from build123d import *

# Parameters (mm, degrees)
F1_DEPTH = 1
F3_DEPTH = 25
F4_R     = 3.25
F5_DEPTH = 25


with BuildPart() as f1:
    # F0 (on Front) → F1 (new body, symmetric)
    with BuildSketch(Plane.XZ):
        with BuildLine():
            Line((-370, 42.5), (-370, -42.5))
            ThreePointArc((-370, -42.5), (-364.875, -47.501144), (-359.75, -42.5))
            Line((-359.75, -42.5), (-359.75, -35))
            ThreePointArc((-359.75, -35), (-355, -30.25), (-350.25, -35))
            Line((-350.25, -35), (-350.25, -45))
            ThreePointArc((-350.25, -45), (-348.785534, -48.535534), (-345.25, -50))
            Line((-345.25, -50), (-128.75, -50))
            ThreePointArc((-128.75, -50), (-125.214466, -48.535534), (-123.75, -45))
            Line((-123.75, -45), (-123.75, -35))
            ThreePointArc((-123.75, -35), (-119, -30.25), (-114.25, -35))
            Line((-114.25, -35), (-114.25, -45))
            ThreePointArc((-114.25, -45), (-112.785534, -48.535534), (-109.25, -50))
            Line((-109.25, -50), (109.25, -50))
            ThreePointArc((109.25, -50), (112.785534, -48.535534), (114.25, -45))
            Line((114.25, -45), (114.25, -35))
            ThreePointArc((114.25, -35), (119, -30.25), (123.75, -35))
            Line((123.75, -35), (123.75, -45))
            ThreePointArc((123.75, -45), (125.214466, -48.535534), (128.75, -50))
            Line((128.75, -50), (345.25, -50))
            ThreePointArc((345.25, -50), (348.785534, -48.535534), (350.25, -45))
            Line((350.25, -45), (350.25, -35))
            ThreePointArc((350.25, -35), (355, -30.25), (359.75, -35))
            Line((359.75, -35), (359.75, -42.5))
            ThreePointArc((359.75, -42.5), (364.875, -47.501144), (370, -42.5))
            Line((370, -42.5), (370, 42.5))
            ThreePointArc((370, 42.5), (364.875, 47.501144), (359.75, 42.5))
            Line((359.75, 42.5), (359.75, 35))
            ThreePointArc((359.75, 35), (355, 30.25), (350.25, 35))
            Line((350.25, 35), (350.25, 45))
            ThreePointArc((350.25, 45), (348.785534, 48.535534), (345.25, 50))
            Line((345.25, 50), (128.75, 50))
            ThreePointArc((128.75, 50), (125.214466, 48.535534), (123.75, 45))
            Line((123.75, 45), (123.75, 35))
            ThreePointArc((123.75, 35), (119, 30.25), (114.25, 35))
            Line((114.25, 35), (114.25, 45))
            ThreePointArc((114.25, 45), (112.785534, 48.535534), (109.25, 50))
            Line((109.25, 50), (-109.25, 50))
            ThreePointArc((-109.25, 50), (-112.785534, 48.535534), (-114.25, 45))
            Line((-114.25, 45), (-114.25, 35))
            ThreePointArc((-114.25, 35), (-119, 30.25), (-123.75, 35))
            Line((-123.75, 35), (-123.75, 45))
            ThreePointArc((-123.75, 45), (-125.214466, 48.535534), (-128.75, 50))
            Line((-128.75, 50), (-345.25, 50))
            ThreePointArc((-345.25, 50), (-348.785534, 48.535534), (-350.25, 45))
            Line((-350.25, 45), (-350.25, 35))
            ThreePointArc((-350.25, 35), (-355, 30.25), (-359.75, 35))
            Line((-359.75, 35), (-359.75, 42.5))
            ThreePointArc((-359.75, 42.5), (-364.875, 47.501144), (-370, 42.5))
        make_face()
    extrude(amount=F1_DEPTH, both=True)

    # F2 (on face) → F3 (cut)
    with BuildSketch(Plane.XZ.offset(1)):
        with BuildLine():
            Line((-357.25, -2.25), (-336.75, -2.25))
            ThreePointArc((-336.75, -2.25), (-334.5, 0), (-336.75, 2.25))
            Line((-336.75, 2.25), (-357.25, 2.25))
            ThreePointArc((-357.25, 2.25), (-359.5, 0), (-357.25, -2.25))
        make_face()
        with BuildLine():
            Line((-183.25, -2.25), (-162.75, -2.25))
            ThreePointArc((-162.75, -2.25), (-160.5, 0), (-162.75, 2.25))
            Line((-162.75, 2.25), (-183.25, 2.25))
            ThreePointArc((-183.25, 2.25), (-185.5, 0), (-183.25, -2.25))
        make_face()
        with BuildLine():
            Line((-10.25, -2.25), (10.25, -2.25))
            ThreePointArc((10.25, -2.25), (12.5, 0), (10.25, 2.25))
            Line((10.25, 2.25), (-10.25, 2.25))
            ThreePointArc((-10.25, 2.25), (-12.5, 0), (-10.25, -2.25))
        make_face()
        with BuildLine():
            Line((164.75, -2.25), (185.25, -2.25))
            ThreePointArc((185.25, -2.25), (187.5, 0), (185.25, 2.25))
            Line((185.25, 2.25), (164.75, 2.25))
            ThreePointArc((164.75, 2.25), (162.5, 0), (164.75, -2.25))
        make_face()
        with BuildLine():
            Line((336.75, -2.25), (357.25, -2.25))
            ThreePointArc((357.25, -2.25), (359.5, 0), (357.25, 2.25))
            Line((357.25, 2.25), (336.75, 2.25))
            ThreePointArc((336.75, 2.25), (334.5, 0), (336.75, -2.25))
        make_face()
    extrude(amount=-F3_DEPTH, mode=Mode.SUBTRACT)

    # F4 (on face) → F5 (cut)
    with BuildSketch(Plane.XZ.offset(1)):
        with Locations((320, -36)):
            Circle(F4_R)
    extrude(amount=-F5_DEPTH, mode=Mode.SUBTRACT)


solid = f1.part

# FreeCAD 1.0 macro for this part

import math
import FreeCAD as App
import Part
import Sketcher
from FreeCAD import Vector
Q = App.Units.Quantity

doc = App.newDocument("Part")
body = doc.addObject("PartDesign::Body", "Body")

# Sketch on XZ plane
sketch1 = doc.addObject("Sketcher::SketchObject", "Sketch")
body.addObject(sketch1)
sketch1.AttachmentSupport = (doc.XZ_Plane, [""])
sketch1.MapMode = "FlatFace"
sketch1.addGeometry(Part.LineSegment(Vector(-370, 42.5, 0), Vector(-370, -42.5, 0)), False)
sketch1.addGeometry(Part.ArcOfCircle(Part.Circle(Vector(-364.9, -42.4, 0), Vector(0, 0, 1), 5.1), math.radians(-179), math.radians(-1)), False)
sketch1.addGeometry(Part.LineSegment(Vector(-359.8, -42.5, 0), Vector(-359.8, -35, 0)), False)
sketch1.addGeometry(Part.ArcOfCircle(Part.Circle(Vector(-355, -35, 0), Vector(0, 0, 1), 4.8), math.radians(0), math.radians(180)), False)
sketch1.addGeometry(Part.LineSegment(Vector(-350.2, -35, 0), Vector(-350.2, -45, 0)), False)
sketch1.addGeometry(Part.ArcOfCircle(Part.Circle(Vector(-345.3, -45, 0), Vector(0, 0, 1), 5), math.radians(180), math.radians(270)), False)
sketch1.addGeometry(Part.LineSegment(Vector(-345.2, -50, 0), Vector(-128.8, -50, 0)), False)
sketch1.addGeometry(Part.ArcOfCircle(Part.Circle(Vector(-128.7, -45, 0), Vector(0, 0, 1), 5), math.radians(-90), math.radians(0)), False)
sketch1.addGeometry(Part.LineSegment(Vector(-123.8, -45, 0), Vector(-123.8, -35, 0)), False)
sketch1.addGeometry(Part.ArcOfCircle(Part.Circle(Vector(-119, -35, 0), Vector(0, 0, 1), 4.8), math.radians(0), math.radians(180)), False)
sketch1.addGeometry(Part.LineSegment(Vector(-114.2, -35, 0), Vector(-114.2, -45, 0)), False)
sketch1.addGeometry(Part.ArcOfCircle(Part.Circle(Vector(-109.3, -45, 0), Vector(0, 0, 1), 5), math.radians(180), math.radians(270)), False)
sketch1.addGeometry(Part.LineSegment(Vector(-109.2, -50, 0), Vector(109.2, -50, 0)), False)
sketch1.addGeometry(Part.ArcOfCircle(Part.Circle(Vector(109.3, -45, 0), Vector(0, 0, 1), 5), math.radians(-90), math.radians(0)), False)
sketch1.addGeometry(Part.LineSegment(Vector(114.2, -45, 0), Vector(114.2, -35, 0)), False)
sketch1.addGeometry(Part.ArcOfCircle(Part.Circle(Vector(119, -35, 0), Vector(0, 0, 1), 4.8), math.radians(0), math.radians(180)), False)
sketch1.addGeometry(Part.LineSegment(Vector(123.8, -35, 0), Vector(123.8, -45, 0)), False)
sketch1.addGeometry(Part.ArcOfCircle(Part.Circle(Vector(128.7, -45, 0), Vector(0, 0, 1), 5), math.radians(180), math.radians(270)), False)
sketch1.addGeometry(Part.LineSegment(Vector(128.8, -50, 0), Vector(345.2, -50, 0)), False)
sketch1.addGeometry(Part.ArcOfCircle(Part.Circle(Vector(345.3, -45, 0), Vector(0, 0, 1), 5), math.radians(-90), math.radians(0)), False)
sketch1.addGeometry(Part.LineSegment(Vector(350.2, -45, 0), Vector(350.2, -35, 0)), False)
sketch1.addGeometry(Part.ArcOfCircle(Part.Circle(Vector(355, -35, 0), Vector(0, 0, 1), 4.8), math.radians(0), math.radians(180)), False)
sketch1.addGeometry(Part.LineSegment(Vector(359.8, -35, 0), Vector(359.8, -42.5, 0)), False)
sketch1.addGeometry(Part.ArcOfCircle(Part.Circle(Vector(364.9, -42.4, 0), Vector(0, 0, 1), 5.1), math.radians(-179), math.radians(-1)), False)
sketch1.addGeometry(Part.LineSegment(Vector(370, -42.5, 0), Vector(370, 42.5, 0)), False)
sketch1.addGeometry(Part.ArcOfCircle(Part.Circle(Vector(364.9, 42.4, 0), Vector(0, 0, 1), 5.1), math.radians(1), math.radians(179)), False)
sketch1.addGeometry(Part.LineSegment(Vector(359.8, 42.5, 0), Vector(359.8, 35, 0)), False)
sketch1.addGeometry(Part.ArcOfCircle(Part.Circle(Vector(355, 35, 0), Vector(0, 0, 1), 4.8), math.radians(180), math.radians(360)), False)
sketch1.addGeometry(Part.LineSegment(Vector(350.2, 35, 0), Vector(350.2, 45, 0)), False)
sketch1.addGeometry(Part.ArcOfCircle(Part.Circle(Vector(345.3, 45, 0), Vector(0, 0, 1), 5), math.radians(0), math.radians(90)), False)
sketch1.addGeometry(Part.LineSegment(Vector(345.2, 50, 0), Vector(128.8, 50, 0)), False)
sketch1.addGeometry(Part.ArcOfCircle(Part.Circle(Vector(128.7, 45, 0), Vector(0, 0, 1), 5), math.radians(90), math.radians(180)), False)
sketch1.addGeometry(Part.LineSegment(Vector(123.8, 45, 0), Vector(123.8, 35, 0)), False)
sketch1.addGeometry(Part.ArcOfCircle(Part.Circle(Vector(119, 35, 0), Vector(0, 0, 1), 4.8), math.radians(180), math.radians(360)), False)
sketch1.addGeometry(Part.LineSegment(Vector(114.2, 35, 0), Vector(114.2, 45, 0)), False)
sketch1.addGeometry(Part.ArcOfCircle(Part.Circle(Vector(109.3, 45, 0), Vector(0, 0, 1), 5), math.radians(0), math.radians(90)), False)
sketch1.addGeometry(Part.LineSegment(Vector(109.2, 50, 0), Vector(-109.2, 50, 0)), False)
sketch1.addGeometry(Part.ArcOfCircle(Part.Circle(Vector(-109.3, 45, 0), Vector(0, 0, 1), 5), math.radians(90), math.radians(180)), False)
sketch1.addGeometry(Part.LineSegment(Vector(-114.2, 45, 0), Vector(-114.2, 35, 0)), False)
sketch1.addGeometry(Part.ArcOfCircle(Part.Circle(Vector(-119, 35, 0), Vector(0, 0, 1), 4.8), math.radians(180), math.radians(360)), False)
sketch1.addGeometry(Part.LineSegment(Vector(-123.8, 35, 0), Vector(-123.8, 45, 0)), False)
sketch1.addGeometry(Part.ArcOfCircle(Part.Circle(Vector(-128.7, 45, 0), Vector(0, 0, 1), 5), math.radians(0), math.radians(90)), False)
sketch1.addGeometry(Part.LineSegment(Vector(-128.8, 50, 0), Vector(-345.2, 50, 0)), False)
sketch1.addGeometry(Part.ArcOfCircle(Part.Circle(Vector(-345.3, 45, 0), Vector(0, 0, 1), 5), math.radians(90), math.radians(180)), False)
sketch1.addGeometry(Part.LineSegment(Vector(-350.2, 45, 0), Vector(-350.2, 35, 0)), False)
sketch1.addGeometry(Part.ArcOfCircle(Part.Circle(Vector(-355, 35, 0), Vector(0, 0, 1), 4.8), math.radians(180), math.radians(360)), False)
sketch1.addGeometry(Part.LineSegment(Vector(-359.8, 35, 0), Vector(-359.8, 42.5, 0)), False)
sketch1.addGeometry(Part.ArcOfCircle(Part.Circle(Vector(-364.9, 42.4, 0), Vector(0, 0, 1), 5.1), math.radians(1), math.radians(179)), False)
sketch1.addConstraint(Sketcher.Constraint("Coincident", 0, 2, 1, 1))
sketch1.addConstraint(Sketcher.Constraint("Coincident", 1, 2, 2, 1))
sketch1.addConstraint(Sketcher.Constraint("Tangent", 2, 2, 3, 2))
sketch1.addConstraint(Sketcher.Constraint("Tangent", 3, 1, 4, 1))
sketch1.addConstraint(Sketcher.Constraint("Tangent", 4, 2, 5, 1))
sketch1.addConstraint(Sketcher.Constraint("Tangent", 5, 2, 6, 1))
sketch1.addConstraint(Sketcher.Constraint("Tangent", 6, 2, 7, 1))
sketch1.addConstraint(Sketcher.Constraint("Tangent", 7, 2, 8, 1))
sketch1.addConstraint(Sketcher.Constraint("Tangent", 8, 2, 9, 2))
sketch1.addConstraint(Sketcher.Constraint("Tangent", 9, 1, 10, 1))
sketch1.addConstraint(Sketcher.Constraint("Tangent", 10, 2, 11, 1))
sketch1.addConstraint(Sketcher.Constraint("Tangent", 11, 2, 12, 1))
sketch1.addConstraint(Sketcher.Constraint("Tangent", 12, 2, 13, 1))
sketch1.addConstraint(Sketcher.Constraint("Tangent", 13, 2, 14, 1))
sketch1.addConstraint(Sketcher.Constraint("Tangent", 14, 2, 15, 2))
sketch1.addConstraint(Sketcher.Constraint("Tangent", 15, 1, 16, 1))
sketch1.addConstraint(Sketcher.Constraint("Tangent", 16, 2, 17, 1))
sketch1.addConstraint(Sketcher.Constraint("Tangent", 17, 2, 18, 1))
sketch1.addConstraint(Sketcher.Constraint("Tangent", 18, 2, 19, 1))
sketch1.addConstraint(Sketcher.Constraint("Tangent", 19, 2, 20, 1))
sketch1.addConstraint(Sketcher.Constraint("Tangent", 20, 2, 21, 2))
sketch1.addConstraint(Sketcher.Constraint("Tangent", 21, 1, 22, 1))
sketch1.addConstraint(Sketcher.Constraint("Coincident", 22, 2, 23, 1))
sketch1.addConstraint(Sketcher.Constraint("Coincident", 23, 2, 24, 1))
sketch1.addConstraint(Sketcher.Constraint("Coincident", 24, 2, 25, 1))
sketch1.addConstraint(Sketcher.Constraint("Coincident", 25, 2, 26, 1))
sketch1.addConstraint(Sketcher.Constraint("Tangent", 26, 2, 27, 2))
sketch1.addConstraint(Sketcher.Constraint("Tangent", 27, 1, 28, 1))
sketch1.addConstraint(Sketcher.Constraint("Tangent", 28, 2, 29, 1))
sketch1.addConstraint(Sketcher.Constraint("Tangent", 29, 2, 30, 1))
sketch1.addConstraint(Sketcher.Constraint("Tangent", 30, 2, 31, 1))
sketch1.addConstraint(Sketcher.Constraint("Tangent", 31, 2, 32, 1))
sketch1.addConstraint(Sketcher.Constraint("Tangent", 32, 2, 33, 2))
sketch1.addConstraint(Sketcher.Constraint("Tangent", 33, 1, 34, 1))
sketch1.addConstraint(Sketcher.Constraint("Tangent", 34, 2, 35, 1))
sketch1.addConstraint(Sketcher.Constraint("Tangent", 35, 2, 36, 1))
sketch1.addConstraint(Sketcher.Constraint("Tangent", 36, 2, 37, 1))
sketch1.addConstraint(Sketcher.Constraint("Tangent", 37, 2, 38, 1))
sketch1.addConstraint(Sketcher.Constraint("Tangent", 38, 2, 39, 2))
sketch1.addConstraint(Sketcher.Constraint("Tangent", 39, 1, 40, 1))
sketch1.addConstraint(Sketcher.Constraint("Tangent", 40, 2, 41, 1))
sketch1.addConstraint(Sketcher.Constraint("Tangent", 41, 2, 42, 1))
sketch1.addConstraint(Sketcher.Constraint("Tangent", 42, 2, 43, 1))
sketch1.addConstraint(Sketcher.Constraint("Tangent", 43, 2, 44, 1))
sketch1.addConstraint(Sketcher.Constraint("Tangent", 44, 2, 45, 2))
sketch1.addConstraint(Sketcher.Constraint("Tangent", 45, 1, 46, 1))
sketch1.addConstraint(Sketcher.Constraint("Coincident", 46, 2, 47, 1))
sketch1.addConstraint(Sketcher.Constraint("Coincident", 47, 2, 0, 1))
sketch1.addConstraint(Sketcher.Constraint("Vertical", 0))
sketch1.addConstraint(Sketcher.Constraint("Vertical", 2))
sketch1.addConstraint(Sketcher.Constraint("Vertical", 4))
sketch1.addConstraint(Sketcher.Constraint("Horizontal", 6))
sketch1.addConstraint(Sketcher.Constraint("Vertical", 8))
sketch1.addConstraint(Sketcher.Constraint("Vertical", 10))
sketch1.addConstraint(Sketcher.Constraint("Horizontal", 12))
sketch1.addConstraint(Sketcher.Constraint("Vertical", 14))
sketch1.addConstraint(Sketcher.Constraint("Vertical", 16))
sketch1.addConstraint(Sketcher.Constraint("Horizontal", 18))
sketch1.addConstraint(Sketcher.Constraint("Vertical", 20))
sketch1.addConstraint(Sketcher.Constraint("Vertical", 22))
sketch1.addConstraint(Sketcher.Constraint("Vertical", 24))
sketch1.addConstraint(Sketcher.Constraint("Vertical", 26))
sketch1.addConstraint(Sketcher.Constraint("Vertical", 28))
sketch1.addConstraint(Sketcher.Constraint("Horizontal", 30))
sketch1.addConstraint(Sketcher.Constraint("Vertical", 32))
sketch1.addConstraint(Sketcher.Constraint("Vertical", 34))
sketch1.addConstraint(Sketcher.Constraint("Horizontal", 36))
sketch1.addConstraint(Sketcher.Constraint("Vertical", 38))
sketch1.addConstraint(Sketcher.Constraint("Vertical", 40))
sketch1.addConstraint(Sketcher.Constraint("Horizontal", 42))
sketch1.addConstraint(Sketcher.Constraint("Vertical", 44))
sketch1.addConstraint(Sketcher.Constraint("Vertical", 46))
sketch1.addConstraint(Sketcher.Constraint("Equal", 5, 7))
sketch1.addConstraint(Sketcher.Constraint("Equal", 3, 9))
sketch1.addConstraint(Sketcher.Constraint("Equal", 7, 11))
sketch1.addConstraint(Sketcher.Constraint("Equal", 11, 13))
sketch1.addConstraint(Sketcher.Constraint("Equal", 9, 15))
sketch1.addConstraint(Sketcher.Constraint("Equal", 13, 17))
sketch1.addConstraint(Sketcher.Constraint("Equal", 17, 19))
sketch1.addConstraint(Sketcher.Constraint("Equal", 15, 21))
sketch1.addConstraint(Sketcher.Constraint("Equal", 1, 23))
sketch1.addConstraint(Sketcher.Constraint("Equal", 23, 25))
sketch1.addConstraint(Sketcher.Constraint("Equal", 21, 27))
sketch1.addConstraint(Sketcher.Constraint("Equal", 19, 29))
sketch1.addConstraint(Sketcher.Constraint("Equal", 29, 31))
sketch1.addConstraint(Sketcher.Constraint("Equal", 27, 33))
sketch1.addConstraint(Sketcher.Constraint("Equal", 31, 35))
sketch1.addConstraint(Sketcher.Constraint("Equal", 35, 37))
sketch1.addConstraint(Sketcher.Constraint("Equal", 33, 39))
sketch1.addConstraint(Sketcher.Constraint("Equal", 37, 41))
sketch1.addConstraint(Sketcher.Constraint("Equal", 41, 43))
sketch1.addConstraint(Sketcher.Constraint("Equal", 39, 45))
sketch1.addConstraint(Sketcher.Constraint("Equal", 25, 47))
sketch1.addConstraint(Sketcher.Constraint("Symmetric", 1, 3, 25, 3, -1, 1))
sketch1.addConstraint(Sketcher.Constraint("Symmetric", 3, 3, 27, 3, -1, 1))
sketch1.addConstraint(Sketcher.Constraint("Symmetric", 7, 3, 31, 3, -1, 1))
sketch1.addConstraint(Sketcher.Constraint("Symmetric", 13, 3, 37, 3, -1, 1))
sketch1.addConstraint(Sketcher.Constraint("Symmetric", 19, 3, 43, 3, -1, 1))
sketch1.addConstraint(Sketcher.Constraint("Symmetric", 23, 3, 47, 3, -1, 1))
sketch1.addConstraint(Sketcher.Constraint("Symmetric", 9, 3, 15, 3, -2))
sketch1.addConstraint(Sketcher.Constraint("Symmetric", 5, 3, 19, 3, -2))
sketch1.addConstraint(Sketcher.Constraint("Symmetric", 1, 3, 23, 3, -2))
sketch1.addConstraint(Sketcher.Constraint("Horizontal", 3, 3, 9, 3))
sketch1.addConstraint(Sketcher.Constraint("Horizontal", 7, 3, 11, 3))
sketch1.addConstraint(Sketcher.Constraint("Horizontal", 15, 3, 21, 3))
sketch1.addConstraint(Sketcher.Constraint("Horizontal", 27, 3, 33, 3))
sketch1.addConstraint(Sketcher.Constraint("Horizontal", 33, 3, 39, 3))
sketch1.addConstraint(Sketcher.Constraint("Horizontal", 39, 3, 45, 3))
sketch1.addConstraint(Sketcher.Constraint("Horizontal", 0, 2, 1, 2))
sketch1.addConstraint(Sketcher.Constraint("Horizontal", 22, 2, 23, 2))
sketch1.addConstraint(Sketcher.Constraint("Radius", 5, Q("5 mm")))
sketch1.addConstraint(Sketcher.Constraint("DistanceY", 0, 2, 0, 1, Q("85 mm")))
sketch1.addConstraint(Sketcher.Constraint("DistanceY", 4, 2, 4, 1, Q("10 mm")))
sketch1.addConstraint(Sketcher.Constraint("Radius", 3, Q("4.75 mm")))
sketch1.addConstraint(Sketcher.Constraint("DistanceX", 6, 1, 6, 2, Q("216.5 mm")))
sketch1.addConstraint(Sketcher.Constraint("DistanceX", 12, 1, 12, 2, Q("218.5 mm")))
sketch1.addConstraint(Sketcher.Constraint("DistanceY", 2, 1, 2, 2, Q("7.5 mm")))
sketch1.addConstraint(Sketcher.Constraint("DistanceX", 0, 2, -1, 1, Q("370 mm")))
sketch1.addConstraint(Sketcher.Constraint("Radius", 1, Q("5.126534 mm")))
pad1 = doc.addObject("PartDesign::Pad", "Pad")
body.addObject(pad1)
pad1.Profile = sketch1
pad1.Length = 2
pad1.Midplane = True

# Sketch on XZ plane
sketch2 = doc.addObject("Sketcher::SketchObject", "Sketch001")
body.addObject(sketch2)
sketch2.AttachmentSupport = (doc.XZ_Plane, [""])
sketch2.MapMode = "FlatFace"
sketch2.AttachmentOffset = App.Placement(Vector(0, 0, 1), App.Rotation())
sketch2.addGeometry(Part.LineSegment(Vector(-357.2, -2.2, 0), Vector(-336.8, -2.2, 0)), False)
sketch2.addGeometry(Part.ArcOfCircle(Part.Circle(Vector(-336.8, 0, 0), Vector(0, 0, 1), 2.2), math.radians(-90), math.radians(90)), False)
sketch2.addGeometry(Part.LineSegment(Vector(-336.8, 2.2, 0), Vector(-357.2, 2.2, 0)), False)
sketch2.addGeometry(Part.ArcOfCircle(Part.Circle(Vector(-357.2, 0, 0), Vector(0, 0, 1), 2.2), math.radians(90), math.radians(270)), False)
sketch2.addGeometry(Part.LineSegment(Vector(-183.2, -2.2, 0), Vector(-162.8, -2.2, 0)), False)
sketch2.addGeometry(Part.ArcOfCircle(Part.Circle(Vector(-162.8, 0, 0), Vector(0, 0, 1), 2.2), math.radians(-90), math.radians(90)), False)
sketch2.addGeometry(Part.LineSegment(Vector(-162.8, 2.2, 0), Vector(-183.2, 2.2, 0)), False)
sketch2.addGeometry(Part.ArcOfCircle(Part.Circle(Vector(-183.2, 0, 0), Vector(0, 0, 1), 2.2), math.radians(90), math.radians(270)), False)
sketch2.addGeometry(Part.LineSegment(Vector(-10.2, -2.2, 0), Vector(10.2, -2.2, 0)), False)
sketch2.addGeometry(Part.ArcOfCircle(Part.Circle(Vector(10.2, 0, 0), Vector(0, 0, 1), 2.2), math.radians(-90), math.radians(90)), False)
sketch2.addGeometry(Part.LineSegment(Vector(10.2, 2.2, 0), Vector(-10.2, 2.2, 0)), False)
sketch2.addGeometry(Part.ArcOfCircle(Part.Circle(Vector(-10.2, 0, 0), Vector(0, 0, 1), 2.2), math.radians(90), math.radians(270)), False)
sketch2.addGeometry(Part.LineSegment(Vector(164.8, -2.2, 0), Vector(185.2, -2.2, 0)), False)
sketch2.addGeometry(Part.ArcOfCircle(Part.Circle(Vector(185.2, 0, 0), Vector(0, 0, 1), 2.2), math.radians(-90), math.radians(90)), False)
sketch2.addGeometry(Part.LineSegment(Vector(185.2, 2.2, 0), Vector(164.8, 2.2, 0)), False)
sketch2.addGeometry(Part.ArcOfCircle(Part.Circle(Vector(164.8, 0, 0), Vector(0, 0, 1), 2.2), math.radians(90), math.radians(270)), False)
sketch2.addGeometry(Part.LineSegment(Vector(336.8, -2.2, 0), Vector(357.2, -2.2, 0)), False)
sketch2.addGeometry(Part.ArcOfCircle(Part.Circle(Vector(357.2, 0, 0), Vector(0, 0, 1), 2.2), math.radians(-90), math.radians(90)), False)
sketch2.addGeometry(Part.LineSegment(Vector(357.2, 2.2, 0), Vector(336.8, 2.2, 0)), False)
sketch2.addGeometry(Part.ArcOfCircle(Part.Circle(Vector(336.8, 0, 0), Vector(0, 0, 1), 2.2), math.radians(90), math.radians(270)), False)
sketch2.addConstraint(Sketcher.Constraint("Tangent", 0, 2, 1, 1))
sketch2.addConstraint(Sketcher.Constraint("Tangent", 1, 2, 2, 1))
sketch2.addConstraint(Sketcher.Constraint("Tangent", 2, 2, 3, 1))
sketch2.addConstraint(Sketcher.Constraint("Tangent", 3, 2, 0, 1))
sketch2.addConstraint(Sketcher.Constraint("Tangent", 4, 2, 5, 1))
sketch2.addConstraint(Sketcher.Constraint("Tangent", 5, 2, 6, 1))
sketch2.addConstraint(Sketcher.Constraint("Tangent", 6, 2, 7, 1))
sketch2.addConstraint(Sketcher.Constraint("Tangent", 7, 2, 4, 1))
sketch2.addConstraint(Sketcher.Constraint("Tangent", 8, 2, 9, 1))
sketch2.addConstraint(Sketcher.Constraint("Tangent", 9, 2, 10, 1))
sketch2.addConstraint(Sketcher.Constraint("Tangent", 10, 2, 11, 1))
sketch2.addConstraint(Sketcher.Constraint("Tangent", 11, 2, 8, 1))
sketch2.addConstraint(Sketcher.Constraint("Tangent", 12, 2, 13, 1))
sketch2.addConstraint(Sketcher.Constraint("Tangent", 13, 2, 14, 1))
sketch2.addConstraint(Sketcher.Constraint("Tangent", 14, 2, 15, 1))
sketch2.addConstraint(Sketcher.Constraint("Tangent", 15, 2, 12, 1))
sketch2.addConstraint(Sketcher.Constraint("Tangent", 16, 2, 17, 1))
sketch2.addConstraint(Sketcher.Constraint("Tangent", 17, 2, 18, 1))
sketch2.addConstraint(Sketcher.Constraint("Tangent", 18, 2, 19, 1))
sketch2.addConstraint(Sketcher.Constraint("Tangent", 19, 2, 16, 1))
sketch2.addConstraint(Sketcher.Constraint("Horizontal", 0))
sketch2.addConstraint(Sketcher.Constraint("Horizontal", 2))
sketch2.addConstraint(Sketcher.Constraint("Horizontal", 4))
sketch2.addConstraint(Sketcher.Constraint("Horizontal", 6))
sketch2.addConstraint(Sketcher.Constraint("Horizontal", 8))
sketch2.addConstraint(Sketcher.Constraint("Horizontal", 10))
sketch2.addConstraint(Sketcher.Constraint("Horizontal", 12))
sketch2.addConstraint(Sketcher.Constraint("Horizontal", 14))
sketch2.addConstraint(Sketcher.Constraint("Horizontal", 16))
sketch2.addConstraint(Sketcher.Constraint("Horizontal", 18))
sketch2.addConstraint(Sketcher.Constraint("Equal", 3, 5))
sketch2.addConstraint(Sketcher.Constraint("Equal", 7, 9))
sketch2.addConstraint(Sketcher.Constraint("Equal", 11, 13))
sketch2.addConstraint(Sketcher.Constraint("Equal", 15, 17))
sketch2.addConstraint(Sketcher.Constraint("Symmetric", 9, 3, 11, 3, -1, 1))
sketch2.addConstraint(Sketcher.Constraint("Symmetric", 3, 3, 17, 3, -1, 1))
sketch2.addConstraint(Sketcher.Constraint("Symmetric", 1, 3, 19, 3, -2))
sketch2.addConstraint(Sketcher.Constraint("PointOnObject", 5, 3, -1))
sketch2.addConstraint(Sketcher.Constraint("PointOnObject", 13, 3, -1))
sketch2.addConstraint(Sketcher.Constraint("Equal", 2, 4))
sketch2.addConstraint(Sketcher.Constraint("Equal", 6, 8))
sketch2.addConstraint(Sketcher.Constraint("Equal", 10, 12))
sketch2.addConstraint(Sketcher.Constraint("Radius", 1, Q("2.25 mm")))
sketch2.addConstraint(Sketcher.Constraint("DistanceX", 0, 1, 0, 2, Q("20.5 mm")))
sketch2.addConstraint(Sketcher.Constraint("DistanceX", 1, 3, 5, 3, Q("174 mm")))
sketch2.addConstraint(Sketcher.Constraint("DistanceX", 5, 3, 9, 3, Q("173 mm")))
sketch2.addConstraint(Sketcher.Constraint("DistanceX", 9, 3, 13, 3, Q("175 mm")))
pocket1 = doc.addObject("PartDesign::Pocket", "Pocket")
body.addObject(pocket1)
pocket1.Profile = sketch2
pocket1.Length = 25

# Sketch on XZ plane
sketch3 = doc.addObject("Sketcher::SketchObject", "Sketch002")
body.addObject(sketch3)
sketch3.AttachmentSupport = (doc.XZ_Plane, [""])
sketch3.MapMode = "FlatFace"
sketch3.AttachmentOffset = App.Placement(Vector(0, 0, 1), App.Rotation())
sketch3.addGeometry(Part.Circle(Vector(320, -36, 0), Vector(0, 0, 1), 3.2), False)
sketch3.addConstraint(Sketcher.Constraint("Diameter", 0, Q("6.5 mm")))
sketch3.addConstraint(Sketcher.Constraint("DistanceX", -1, 1, 0, 3, Q("320 mm")))
sketch3.addConstraint(Sketcher.Constraint("DistanceY", 0, 3, -1, 1, Q("36 mm")))
pocket2 = doc.addObject("PartDesign::Pocket", "Pocket001")
body.addObject(pocket2)
pocket2.Profile = sketch3
pocket2.Length = 25

doc.recompute()
